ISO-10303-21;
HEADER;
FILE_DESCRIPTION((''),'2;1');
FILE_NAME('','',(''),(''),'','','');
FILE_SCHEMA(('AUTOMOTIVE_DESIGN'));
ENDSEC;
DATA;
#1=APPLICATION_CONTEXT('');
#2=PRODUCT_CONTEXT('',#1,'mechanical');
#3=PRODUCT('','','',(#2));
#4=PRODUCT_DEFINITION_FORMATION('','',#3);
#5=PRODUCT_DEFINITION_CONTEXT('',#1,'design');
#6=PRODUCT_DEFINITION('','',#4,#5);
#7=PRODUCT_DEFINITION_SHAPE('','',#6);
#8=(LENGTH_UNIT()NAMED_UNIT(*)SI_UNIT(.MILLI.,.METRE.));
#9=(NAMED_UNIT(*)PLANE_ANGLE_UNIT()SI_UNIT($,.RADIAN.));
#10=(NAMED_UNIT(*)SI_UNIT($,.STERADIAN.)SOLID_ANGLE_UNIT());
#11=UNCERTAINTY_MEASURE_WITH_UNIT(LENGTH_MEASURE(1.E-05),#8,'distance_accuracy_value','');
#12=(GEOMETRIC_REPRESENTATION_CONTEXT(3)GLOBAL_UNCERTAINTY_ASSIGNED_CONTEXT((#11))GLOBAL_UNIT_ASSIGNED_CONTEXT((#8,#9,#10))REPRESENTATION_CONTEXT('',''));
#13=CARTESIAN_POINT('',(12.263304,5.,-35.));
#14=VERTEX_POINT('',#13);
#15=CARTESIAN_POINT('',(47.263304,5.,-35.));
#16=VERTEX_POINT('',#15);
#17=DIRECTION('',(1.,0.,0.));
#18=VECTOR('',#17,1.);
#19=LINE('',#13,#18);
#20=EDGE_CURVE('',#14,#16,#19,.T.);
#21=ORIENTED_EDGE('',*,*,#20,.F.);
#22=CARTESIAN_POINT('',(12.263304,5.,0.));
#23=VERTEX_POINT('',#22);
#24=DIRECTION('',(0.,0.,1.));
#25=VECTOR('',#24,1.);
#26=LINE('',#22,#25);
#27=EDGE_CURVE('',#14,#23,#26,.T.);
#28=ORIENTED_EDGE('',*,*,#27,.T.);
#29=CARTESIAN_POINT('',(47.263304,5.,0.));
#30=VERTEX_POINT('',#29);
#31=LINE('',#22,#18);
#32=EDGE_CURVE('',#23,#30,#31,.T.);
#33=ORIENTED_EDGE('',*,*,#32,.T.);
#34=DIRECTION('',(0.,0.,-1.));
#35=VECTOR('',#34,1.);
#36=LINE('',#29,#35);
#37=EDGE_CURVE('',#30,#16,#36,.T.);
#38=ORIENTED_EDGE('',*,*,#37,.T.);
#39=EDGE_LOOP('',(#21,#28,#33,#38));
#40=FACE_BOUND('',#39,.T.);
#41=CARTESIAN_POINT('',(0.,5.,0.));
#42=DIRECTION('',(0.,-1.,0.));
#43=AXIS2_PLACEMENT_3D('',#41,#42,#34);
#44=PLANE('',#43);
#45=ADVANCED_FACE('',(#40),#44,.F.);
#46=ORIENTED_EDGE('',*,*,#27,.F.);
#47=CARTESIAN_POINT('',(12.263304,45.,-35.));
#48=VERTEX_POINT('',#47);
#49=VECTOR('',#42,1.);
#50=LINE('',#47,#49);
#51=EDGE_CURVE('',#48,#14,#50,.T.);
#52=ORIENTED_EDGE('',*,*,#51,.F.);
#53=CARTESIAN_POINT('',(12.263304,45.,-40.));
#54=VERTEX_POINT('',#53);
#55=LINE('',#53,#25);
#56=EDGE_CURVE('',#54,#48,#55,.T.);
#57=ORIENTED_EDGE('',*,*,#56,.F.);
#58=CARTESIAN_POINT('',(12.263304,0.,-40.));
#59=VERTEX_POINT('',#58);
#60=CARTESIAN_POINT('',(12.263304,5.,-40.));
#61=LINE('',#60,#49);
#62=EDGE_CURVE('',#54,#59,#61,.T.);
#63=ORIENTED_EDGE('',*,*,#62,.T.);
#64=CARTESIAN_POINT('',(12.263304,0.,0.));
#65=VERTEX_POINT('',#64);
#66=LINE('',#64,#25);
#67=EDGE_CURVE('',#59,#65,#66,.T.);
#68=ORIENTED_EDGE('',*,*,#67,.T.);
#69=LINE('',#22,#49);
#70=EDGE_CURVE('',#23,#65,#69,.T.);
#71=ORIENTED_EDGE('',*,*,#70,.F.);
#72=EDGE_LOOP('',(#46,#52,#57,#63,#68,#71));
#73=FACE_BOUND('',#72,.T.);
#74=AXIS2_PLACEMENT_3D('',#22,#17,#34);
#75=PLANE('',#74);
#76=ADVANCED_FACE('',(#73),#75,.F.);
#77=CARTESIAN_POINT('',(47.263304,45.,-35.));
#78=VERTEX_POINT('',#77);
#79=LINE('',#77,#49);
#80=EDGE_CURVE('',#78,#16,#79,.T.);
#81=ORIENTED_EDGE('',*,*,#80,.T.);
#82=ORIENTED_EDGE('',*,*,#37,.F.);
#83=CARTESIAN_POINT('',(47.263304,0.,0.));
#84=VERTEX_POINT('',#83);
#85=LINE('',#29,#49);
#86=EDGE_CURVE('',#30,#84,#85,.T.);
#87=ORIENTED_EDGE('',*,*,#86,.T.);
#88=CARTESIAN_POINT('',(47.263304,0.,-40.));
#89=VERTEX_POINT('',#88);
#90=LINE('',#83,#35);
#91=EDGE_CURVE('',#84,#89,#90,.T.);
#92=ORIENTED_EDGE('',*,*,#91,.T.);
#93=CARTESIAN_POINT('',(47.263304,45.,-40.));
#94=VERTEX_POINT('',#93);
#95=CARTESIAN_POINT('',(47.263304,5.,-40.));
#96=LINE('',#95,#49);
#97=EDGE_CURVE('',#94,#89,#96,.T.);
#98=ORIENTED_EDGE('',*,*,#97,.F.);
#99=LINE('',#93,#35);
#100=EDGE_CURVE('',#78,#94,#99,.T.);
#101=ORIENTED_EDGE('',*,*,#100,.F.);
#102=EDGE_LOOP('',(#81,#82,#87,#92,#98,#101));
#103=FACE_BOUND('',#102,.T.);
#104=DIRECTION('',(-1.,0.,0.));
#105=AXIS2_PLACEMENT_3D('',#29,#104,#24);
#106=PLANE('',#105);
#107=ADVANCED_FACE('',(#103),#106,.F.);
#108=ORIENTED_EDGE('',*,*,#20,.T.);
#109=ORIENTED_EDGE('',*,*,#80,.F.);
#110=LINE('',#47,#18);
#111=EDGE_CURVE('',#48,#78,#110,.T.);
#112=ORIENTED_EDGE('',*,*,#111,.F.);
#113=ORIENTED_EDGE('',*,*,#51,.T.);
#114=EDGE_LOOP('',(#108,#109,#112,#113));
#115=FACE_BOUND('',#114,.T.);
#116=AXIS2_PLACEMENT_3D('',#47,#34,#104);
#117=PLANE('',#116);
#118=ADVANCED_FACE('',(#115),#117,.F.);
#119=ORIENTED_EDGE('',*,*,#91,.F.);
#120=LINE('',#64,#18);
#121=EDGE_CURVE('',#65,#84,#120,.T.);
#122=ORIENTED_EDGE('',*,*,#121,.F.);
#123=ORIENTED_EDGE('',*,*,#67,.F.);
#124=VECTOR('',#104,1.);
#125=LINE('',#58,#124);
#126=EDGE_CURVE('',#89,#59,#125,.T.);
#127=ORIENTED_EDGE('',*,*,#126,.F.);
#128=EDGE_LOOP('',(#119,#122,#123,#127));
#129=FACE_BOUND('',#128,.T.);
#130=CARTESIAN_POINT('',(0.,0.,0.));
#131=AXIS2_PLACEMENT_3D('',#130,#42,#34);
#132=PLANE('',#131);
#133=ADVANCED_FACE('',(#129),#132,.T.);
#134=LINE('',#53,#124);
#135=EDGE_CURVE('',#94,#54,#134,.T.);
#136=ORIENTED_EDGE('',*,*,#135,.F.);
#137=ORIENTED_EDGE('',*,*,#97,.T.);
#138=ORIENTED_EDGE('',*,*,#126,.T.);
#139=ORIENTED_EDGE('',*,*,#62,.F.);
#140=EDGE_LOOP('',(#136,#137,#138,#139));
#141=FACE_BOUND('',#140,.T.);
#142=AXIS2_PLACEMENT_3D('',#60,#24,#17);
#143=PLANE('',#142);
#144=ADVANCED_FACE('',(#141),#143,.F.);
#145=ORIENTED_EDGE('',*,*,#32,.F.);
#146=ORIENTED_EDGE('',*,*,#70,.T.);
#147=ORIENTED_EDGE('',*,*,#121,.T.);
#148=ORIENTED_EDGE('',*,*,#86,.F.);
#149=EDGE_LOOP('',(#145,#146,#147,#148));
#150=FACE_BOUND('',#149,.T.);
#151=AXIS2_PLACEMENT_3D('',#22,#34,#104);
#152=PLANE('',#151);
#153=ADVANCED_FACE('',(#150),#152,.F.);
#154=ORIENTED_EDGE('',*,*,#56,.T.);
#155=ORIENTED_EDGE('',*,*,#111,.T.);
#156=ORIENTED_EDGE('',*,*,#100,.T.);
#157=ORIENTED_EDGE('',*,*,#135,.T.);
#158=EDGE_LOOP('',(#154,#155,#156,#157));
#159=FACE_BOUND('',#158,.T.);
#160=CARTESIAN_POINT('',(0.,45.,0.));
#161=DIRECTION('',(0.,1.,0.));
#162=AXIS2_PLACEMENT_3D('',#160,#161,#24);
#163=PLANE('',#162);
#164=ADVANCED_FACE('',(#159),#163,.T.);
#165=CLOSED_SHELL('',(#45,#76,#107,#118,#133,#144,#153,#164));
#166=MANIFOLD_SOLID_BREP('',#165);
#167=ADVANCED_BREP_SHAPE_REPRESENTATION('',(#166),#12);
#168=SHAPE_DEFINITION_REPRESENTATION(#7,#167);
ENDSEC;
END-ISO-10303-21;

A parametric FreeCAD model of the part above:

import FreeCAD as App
import Part
import Sketcher

V = App.Vector
Q = App.Units.Quantity

doc = App.newDocument("Part")
body = doc.addObject("PartDesign::Body", "Body")

sketch1 = body.newObject("Sketcher::SketchObject", "Sketch")
sketch1.AttachmentSupport = (doc.getObject("XZ_Plane"), [""])
sketch1.MapMode = "FlatFace"
sketch1.addGeometry([
    Part.LineSegment(V(12.263304, -40, 0), V(12.263304, 0, 0)),
    Part.LineSegment(V(12.263304, 0, 0), V(47.263304, 0, 0)),
    Part.LineSegment(V(47.263304, 0, 0), V(47.263304, -40, 0)),
    Part.LineSegment(V(47.263304, -40, 0), V(12.263304, -40, 0)),
], False)
sketch1.addConstraint([
    Sketcher.Constraint("Coincident", 0, 2, 1, 1),
    Sketcher.Constraint("Coincident", 1, 2, 2, 1),
    Sketcher.Constraint("Coincident", 2, 2, 3, 1),
    Sketcher.Constraint("Coincident", 3, 2, 0, 1),
    Sketcher.Constraint("Vertical", 0),
    Sketcher.Constraint("Horizontal", 1),
    Sketcher.Constraint("Vertical", 2),
    Sketcher.Constraint("Horizontal", 3),
    Sketcher.Constraint("PointOnObject", 0, 2, -1),
    Sketcher.Constraint("DistanceX", 1, 1, 1, 2, Q("35 mm")),
    Sketcher.Constraint("DistanceY", 0, 1, 0, 2, Q("40 mm")),
    Sketcher.Constraint("DistanceX", -1, 1, 0, 2, Q("12.263304 mm")),
])
pad1 = body.newObject("PartDesign::Pad", "Pad")
pad1.Profile = sketch1
pad1.Length = 5
pad1.Reversed = True

sketch2 = body.newObject("Sketcher::SketchObject", "Sketch001")
sketch2.AttachmentSupport = (doc.getObject("XZ_Plane"), [""])
sketch2.MapMode = "FlatFace"
sketch2.AttachmentOffset = App.Placement(V(0, 0, -5), App.Rotation())
sketch2.addGeometry([
    Part.LineSegment(V(12.263304, -40, 0), V(12.263304, -35, 0)),
    Part.LineSegment(V(12.263304, -35, 0), V(47.263304, -35, 0)),
    Part.LineSegment(V(47.263304, -35, 0), V(47.263304, -40, 0)),
    Part.LineSegment(V(47.263304, -40, 0), V(12.263304, -40, 0)),
], False)
sketch2.addConstraint([
    Sketcher.Constraint("Coincident", 0, 2, 1, 1),
    Sketcher.Constraint("Coincident", 1, 2, 2, 1),
    Sketcher.Constraint("Coincident", 2, 2, 3, 1),
    Sketcher.Constraint("Coincident", 3, 2, 0, 1),
    Sketcher.Constraint("Vertical", 0),
    Sketcher.Constraint("Horizontal", 1),
    Sketcher.Constraint("Vertical", 2),
    Sketcher.Constraint("Horizontal", 3),
    Sketcher.Constraint("DistanceX", 1, 1, 1, 2, Q("35 mm")),
    Sketcher.Constraint("DistanceY", 0, 1, 0, 2, Q("5 mm")),
    Sketcher.Constraint("DistanceY", 0, 2, -1, 1, Q("35 mm")),
    Sketcher.Constraint("DistanceX", -1, 1, 0, 2, Q("12.263304 mm")),
])
pad2 = body.newObject("PartDesign::Pad", "Pad001")
pad2.Profile = sketch2
pad2.Length = 40
pad2.Reversed = True

doc.recompute()
